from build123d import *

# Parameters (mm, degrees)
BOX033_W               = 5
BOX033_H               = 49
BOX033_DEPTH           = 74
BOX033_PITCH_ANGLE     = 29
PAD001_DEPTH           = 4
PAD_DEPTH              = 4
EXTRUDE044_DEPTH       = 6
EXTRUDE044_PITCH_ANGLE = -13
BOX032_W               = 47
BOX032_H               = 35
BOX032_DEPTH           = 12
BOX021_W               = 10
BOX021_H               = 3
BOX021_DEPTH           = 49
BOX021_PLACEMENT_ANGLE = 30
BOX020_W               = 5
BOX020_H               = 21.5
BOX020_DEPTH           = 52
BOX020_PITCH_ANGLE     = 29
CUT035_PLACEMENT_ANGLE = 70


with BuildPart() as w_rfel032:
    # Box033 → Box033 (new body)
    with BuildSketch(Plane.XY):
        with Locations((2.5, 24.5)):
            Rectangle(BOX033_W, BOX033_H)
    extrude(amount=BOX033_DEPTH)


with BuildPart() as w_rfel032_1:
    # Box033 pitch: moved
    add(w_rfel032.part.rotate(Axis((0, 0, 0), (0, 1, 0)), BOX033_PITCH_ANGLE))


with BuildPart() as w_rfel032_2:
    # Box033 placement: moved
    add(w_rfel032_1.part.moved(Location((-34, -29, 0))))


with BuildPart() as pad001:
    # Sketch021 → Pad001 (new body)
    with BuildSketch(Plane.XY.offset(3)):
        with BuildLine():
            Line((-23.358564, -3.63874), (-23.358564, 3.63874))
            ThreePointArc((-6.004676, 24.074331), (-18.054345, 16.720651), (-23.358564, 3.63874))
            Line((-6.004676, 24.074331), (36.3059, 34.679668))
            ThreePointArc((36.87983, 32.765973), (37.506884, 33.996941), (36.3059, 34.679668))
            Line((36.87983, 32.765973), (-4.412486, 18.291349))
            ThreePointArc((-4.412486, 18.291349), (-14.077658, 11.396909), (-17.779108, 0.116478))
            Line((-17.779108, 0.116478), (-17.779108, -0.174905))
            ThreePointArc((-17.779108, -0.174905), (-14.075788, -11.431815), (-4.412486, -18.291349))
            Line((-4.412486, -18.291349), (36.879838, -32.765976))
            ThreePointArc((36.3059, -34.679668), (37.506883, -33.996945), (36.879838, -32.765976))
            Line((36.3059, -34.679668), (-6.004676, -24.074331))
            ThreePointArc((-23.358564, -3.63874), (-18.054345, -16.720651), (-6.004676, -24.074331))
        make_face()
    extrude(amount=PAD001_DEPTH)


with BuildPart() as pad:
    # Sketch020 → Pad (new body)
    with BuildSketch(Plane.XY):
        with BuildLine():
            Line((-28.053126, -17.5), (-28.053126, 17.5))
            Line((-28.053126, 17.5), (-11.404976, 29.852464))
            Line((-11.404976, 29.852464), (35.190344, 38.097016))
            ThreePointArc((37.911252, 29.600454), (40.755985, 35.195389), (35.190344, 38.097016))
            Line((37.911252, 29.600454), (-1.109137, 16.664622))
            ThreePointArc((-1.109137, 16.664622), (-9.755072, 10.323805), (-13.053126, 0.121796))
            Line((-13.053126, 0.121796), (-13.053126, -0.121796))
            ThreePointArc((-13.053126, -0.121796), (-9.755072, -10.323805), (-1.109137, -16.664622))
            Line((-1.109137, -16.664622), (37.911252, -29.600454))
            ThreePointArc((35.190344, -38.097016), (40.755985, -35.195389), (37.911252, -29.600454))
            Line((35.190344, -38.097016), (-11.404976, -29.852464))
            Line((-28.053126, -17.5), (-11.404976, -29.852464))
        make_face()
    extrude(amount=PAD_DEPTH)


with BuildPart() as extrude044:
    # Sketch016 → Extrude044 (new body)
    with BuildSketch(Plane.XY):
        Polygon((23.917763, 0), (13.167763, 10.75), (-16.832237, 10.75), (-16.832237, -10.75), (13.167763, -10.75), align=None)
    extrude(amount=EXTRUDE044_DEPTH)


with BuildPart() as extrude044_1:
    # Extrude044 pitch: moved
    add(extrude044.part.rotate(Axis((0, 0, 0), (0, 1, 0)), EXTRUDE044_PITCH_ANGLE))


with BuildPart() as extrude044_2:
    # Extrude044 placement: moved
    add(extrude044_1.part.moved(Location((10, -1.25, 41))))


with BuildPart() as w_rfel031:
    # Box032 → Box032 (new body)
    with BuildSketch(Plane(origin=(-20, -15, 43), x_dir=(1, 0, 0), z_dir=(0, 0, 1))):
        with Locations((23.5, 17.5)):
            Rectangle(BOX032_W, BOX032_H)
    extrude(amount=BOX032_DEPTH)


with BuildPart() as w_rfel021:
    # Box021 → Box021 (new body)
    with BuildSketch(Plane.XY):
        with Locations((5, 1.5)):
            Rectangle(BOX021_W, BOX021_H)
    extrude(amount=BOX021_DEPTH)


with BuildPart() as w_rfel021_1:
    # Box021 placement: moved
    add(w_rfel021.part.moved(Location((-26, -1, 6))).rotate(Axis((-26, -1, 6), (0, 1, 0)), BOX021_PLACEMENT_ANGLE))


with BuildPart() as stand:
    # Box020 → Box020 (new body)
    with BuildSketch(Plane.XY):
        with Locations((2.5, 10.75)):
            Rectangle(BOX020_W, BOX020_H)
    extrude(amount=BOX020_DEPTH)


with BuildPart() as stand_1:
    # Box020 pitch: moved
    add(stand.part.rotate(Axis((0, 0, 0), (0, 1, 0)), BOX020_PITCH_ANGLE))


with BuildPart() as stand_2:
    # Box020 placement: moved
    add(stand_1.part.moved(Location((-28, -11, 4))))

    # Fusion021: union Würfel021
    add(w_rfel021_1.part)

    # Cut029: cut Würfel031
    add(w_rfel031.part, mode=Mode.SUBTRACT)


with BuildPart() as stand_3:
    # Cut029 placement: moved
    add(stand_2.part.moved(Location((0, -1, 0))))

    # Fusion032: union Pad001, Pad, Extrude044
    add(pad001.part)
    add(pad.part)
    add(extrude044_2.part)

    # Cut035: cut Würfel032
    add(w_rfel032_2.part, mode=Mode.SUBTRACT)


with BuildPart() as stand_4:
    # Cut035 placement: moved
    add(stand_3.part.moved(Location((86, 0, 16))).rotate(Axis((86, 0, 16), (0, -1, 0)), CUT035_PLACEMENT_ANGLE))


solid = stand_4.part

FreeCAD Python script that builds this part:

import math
import FreeCAD as App
import Part
import Sketcher


def add_polygon(sketch, points):
    """Adds a closed chain of lines whose ends are joined by coincident constraints."""
    first, n = sketch.GeometryCount, len(points)
    for a, b in zip(points, points[1:] + points[:1]):
        sketch.addGeometry(Part.LineSegment(App.Vector(*a, 0), App.Vector(*b, 0)), False)
    for i in range(n):
        sketch.addConstraint(Sketcher.Constraint("Coincident", first + i, 2, first + (i + 1) % n, 1))

doc = App.newDocument("Part")
body = doc.addObject("PartDesign::Body", "Body")

sketch1 = body.newObject("Sketcher::SketchObject", "Sketch")
sketch1.AttachmentSupport = (doc.getObject("XY_Plane"), [""])
sketch1.MapMode = "FlatFace"
add_polygon(sketch1, [(0, 49), (0, 0), (5, 0), (5, 49)])
sketch1.addConstraint(Sketcher.Constraint("Vertical", 0))
sketch1.addConstraint(Sketcher.Constraint("Horizontal", 1))
sketch1.addConstraint(Sketcher.Constraint("Vertical", 2))
sketch1.addConstraint(Sketcher.Constraint("Horizontal", 3))
sketch1.addConstraint(Sketcher.Constraint("Coincident", 0, 2, -1, 1))
sketch1.addConstraint(Sketcher.Constraint("DistanceX", 1, 1, 1, 2, 5.0))
sketch1.addConstraint(Sketcher.Constraint("DistanceY", 0, 2, 0, 1, 49.0))
pad1 = body.newObject("PartDesign::Pad", "Pad")
pad1.Profile = sketch1
pad1.Length = 74
body2 = doc.addObject("PartDesign::Body", "Body001")
doc.recompute()

body.Placement = App.Placement(App.Vector(0, 0, 0), App.Rotation(App.Vector(0, 1, 0), 29))
boolean = body2.newObject("PartDesign::Boolean", "Boolean")
boolean.Type = "Fuse"
boolean.addObjects([body])
body3 = doc.addObject("PartDesign::Body", "Body002")
doc.recompute()

body2.Placement = App.Placement(App.Vector(-34, -29, 0), App.Rotation(App.Vector(0, 0, 1), 0))
boolean2 = body3.newObject("PartDesign::Boolean", "Boolean001")
boolean2.Type = "Fuse"
boolean2.addObjects([body2])
body4 = doc.addObject("PartDesign::Body", "Body003")

sketch2 = body4.newObject("Sketcher::SketchObject", "Sketch001")
sketch2.AttachmentSupport = (doc.getObject("XY_Plane003"), [""])
sketch2.MapMode = "FlatFace"
sketch2.AttachmentOffset = App.Placement(App.Vector(0, 0, 3), App.Rotation())
sketch2.addGeometry(Part.LineSegment(App.Vector(-23.358564, 3.63874, 0), App.Vector(-23.358564, -3.63874, 0)), False)
sketch2.addGeometry(Part.ArcOfCircle(Part.Circle(App.Vector(-0.890387, -2.145031, 0), App.Vector(0, 0, 1), 22.517774), math.radians(-176.196512), math.radians(-103.127709)), False)
sketch2.addGeometry(Part.LineSegment(App.Vector(-6.004676, -24.074331, 0), App.Vector(36.3059, -34.679668, 0)), False)
sketch2.addGeometry(Part.ArcOfCircle(Part.Circle(App.Vector(36.549033, -33.709675, 0), App.Vector(0, 0, 1), 1), math.radians(-104.071549), math.radians(70.682378)), False)
sketch2.addGeometry(Part.LineSegment(App.Vector(36.879838, -32.765976, 0), App.Vector(-4.412486, -18.291349, 0)), False)
sketch2.addGeometry(Part.ArcOfCircle(Part.Circle(App.Vector(1.181261, -0.174904, 0), App.Vector(0, 0, 1), 18.960369), math.radians(-179.999997), math.radians(-107.158923)), False)
sketch2.addGeometry(Part.LineSegment(App.Vector(-17.779108, -0.174905, 0), App.Vector(-17.779108, 0.116478, 0)), False)
sketch2.addGeometry(Part.ArcOfCircle(Part.Circle(App.Vector(1.260578, 0.116476, 0), App.Vector(0, 0, 1), 19.039686), math.radians(107.335115), math.radians(179.999995)), False)
sketch2.addGeometry(Part.LineSegment(App.Vector(-4.412486, 18.291349, 0), App.Vector(36.87983, 32.765973, 0)), False)
sketch2.addGeometry(Part.ArcOfCircle(Part.Circle(App.Vector(36.549033, 33.709675, 0), App.Vector(0, 0, 1), 1), math.radians(-70.68285), math.radians(104.071532)), False)
sketch2.addGeometry(Part.LineSegment(App.Vector(36.3059, 34.679668, 0), App.Vector(-6.004676, 24.074331, 0)), False)
sketch2.addGeometry(Part.ArcOfCircle(Part.Circle(App.Vector(-0.890387, 2.145031, 0), App.Vector(0, 0, 1), 22.517774), math.radians(103.127709), math.radians(176.196512)), False)
sketch2.addConstraint(Sketcher.Constraint("Coincident", 0, 2, 1, 1))
sketch2.addConstraint(Sketcher.Constraint("Coincident", 1, 2, 2, 1))
sketch2.addConstraint(Sketcher.Constraint("Tangent", 2, 2, 3, 1))
sketch2.addConstraint(Sketcher.Constraint("Tangent", 3, 2, 4, 1))
sketch2.addConstraint(Sketcher.Constraint("Coincident", 4, 2, 5, 2))
sketch2.addConstraint(Sketcher.Constraint("Tangent", 5, 1, 6, 1))
sketch2.addConstraint(Sketcher.Constraint("Tangent", 6, 2, 7, 2))
sketch2.addConstraint(Sketcher.Constraint("Coincident", 7, 1, 8, 1))
sketch2.addConstraint(Sketcher.Constraint("Coincident", 8, 2, 9, 1))
sketch2.addConstraint(Sketcher.Constraint("Tangent", 9, 2, 10, 1))
sketch2.addConstraint(Sketcher.Constraint("Coincident", 10, 2, 11, 1))
sketch2.addConstraint(Sketcher.Constraint("Coincident", 11, 2, 0, 1))
sketch2.addConstraint(Sketcher.Constraint("Vertical", 0))
sketch2.addConstraint(Sketcher.Constraint("Vertical", 6))
sketch2.addConstraint(Sketcher.Constraint("Equal", 3, 9))
sketch2.addConstraint(Sketcher.Constraint("Equal", 1, 11))
sketch2.addConstraint(Sketcher.Constraint("Symmetric", 3, 3, 9, 3, -1))
sketch2.addConstraint(Sketcher.Constraint("Symmetric", 1, 3, 11, 3, -1))
sketch2.addConstraint(Sketcher.Constraint("Symmetric", 4, 2, 7, 1, -1))
sketch2.addConstraint(Sketcher.Constraint("Vertical", 1, 2, 10, 2))
sketch2.addConstraint(Sketcher.Constraint("Radius", 3, 1.0))
sketch2.addConstraint(Sketcher.Constraint("Radius", 5, 18.960369))
sketch2.addConstraint(Sketcher.Constraint("Radius", 1, 22.517774))
sketch2.addConstraint(Sketcher.Constraint("Radius", 7, 19.039686))
sketch2.addConstraint(Sketcher.Constraint("Distance", 8, 43.755801))
sketch2.addConstraint(Sketcher.Constraint("DistanceY", 0, 2, 0, 1, 7.27748))
sketch2.addConstraint(Sketcher.Constraint("DistanceX", -1, 1, 2, 2, 36.3059))
sketch2.addConstraint(Sketcher.Constraint("DistanceY", 7, 3, 9, 3, 33.593199))
sketch2.addConstraint(Sketcher.Constraint("DistanceY", 1, 2, 1, 3, 21.9293))
sketch2.addConstraint(Sketcher.Constraint("DistanceX", 4, 2, 1, 3, 3.522099))
sketch2.addConstraint(Sketcher.Constraint("Distance", 2, 43.619468))
sketch2.addConstraint(Sketcher.Constraint("Distance", 4, 43.755809))
sketch2.addConstraint(Sketcher.Constraint("DistanceY", 6, 1, 6, 2, 0.291383))
sketch2.addConstraint(Sketcher.Constraint("DistanceY", 1, 3, -1, 1, 2.145031))
pad2 = body4.newObject("PartDesign::Pad", "Pad001")
pad2.Profile = sketch2
pad2.Length = 4
body5 = doc.addObject("PartDesign::Body", "Body004")

sketch3 = body5.newObject("Sketcher::SketchObject", "Sketch002")
sketch3.AttachmentSupport = (doc.getObject("XY_Plane004"), [""])
sketch3.MapMode = "FlatFace"
sketch3.addGeometry(Part.LineSegment(App.Vector(-28.053126, 17.5, 0), App.Vector(-28.053126, -17.5, 0)), False)
sketch3.addGeometry(Part.LineSegment(App.Vector(-28.053126, -17.5, 0), App.Vector(-11.404976, -29.852464, 0)), False)
sketch3.addGeometry(Part.LineSegment(App.Vector(-11.404976, -29.852464, 0), App.Vector(35.190344, -38.097016, 0)), False)
sketch3.addGeometry(Part.ArcOfCircle(Part.Circle(App.Vector(36.507483, -33.834864, 0), App.Vector(0, 0, 1), 4.461031), math.radians(-107.172797), math.radians(71.658888)), False)
sketch3.addGeometry(Part.LineSegment(App.Vector(37.911252, -29.600454, 0), App.Vector(-1.109137, -16.664622, 0)), False)
sketch3.addGeometry(Part.ArcOfCircle(Part.Circle(App.Vector(4.375054, -0.121796, 0), App.Vector(0, 0, 1), 17.42818), math.radians(-179.999998), math.radians(-108.34112)), False)
sketch3.addGeometry(Part.LineSegment(App.Vector(-13.053126, -0.121796, 0), App.Vector(-13.053126, 0.121796, 0)), False)
sketch3.addGeometry(Part.ArcOfCircle(Part.Circle(App.Vector(4.375054, 0.121796, 0), App.Vector(0, 0, 1), 17.42818), math.radians(108.34112), math.radians(179.999998)), False)
sketch3.addGeometry(Part.LineSegment(App.Vector(-1.109137, 16.664622, 0), App.Vector(37.911252, 29.600454, 0)), False)
sketch3.addGeometry(Part.ArcOfCircle(Part.Circle(App.Vector(36.507483, 33.834864, 0), App.Vector(0, 0, 1), 4.461031), math.radians(-71.658888), math.radians(107.172797)), False)
sketch3.addGeometry(Part.LineSegment(App.Vector(35.190344, 38.097016, 0), App.Vector(-11.404976, 29.852464, 0)), False)
sketch3.addGeometry(Part.LineSegment(App.Vector(-11.404976, 29.852464, 0), App.Vector(-28.053126, 17.5, 0)), False)
sketch3.addConstraint(Sketcher.Constraint("Coincident", 0, 2, 1, 1))
sketch3.addConstraint(Sketcher.Constraint("Coincident", 1, 2, 2, 1))
sketch3.addConstraint(Sketcher.Constraint("Coincident", 2, 2, 3, 1))
sketch3.addConstraint(Sketcher.Constraint("Tangent", 3, 2, 4, 1))
sketch3.addConstraint(Sketcher.Constraint("Tangent", 4, 2, 5, 2))
sketch3.addConstraint(Sketcher.Constraint("Tangent", 5, 1, 6, 1))
sketch3.addConstraint(Sketcher.Constraint("Tangent", 6, 2, 7, 2))
sketch3.addConstraint(Sketcher.Constraint("Tangent", 7, 1, 8, 1))
sketch3.addConstraint(Sketcher.Constraint("Tangent", 8, 2, 9, 1))
sketch3.addConstraint(Sketcher.Constraint("Coincident", 9, 2, 10, 1))
sketch3.addConstraint(Sketcher.Constraint("Coincident", 10, 2, 11, 1))
sketch3.addConstraint(Sketcher.Constraint("Coincident", 11, 2, 0, 1))
sketch3.addConstraint(Sketcher.Constraint("Vertical", 0))
sketch3.addConstraint(Sketcher.Constraint("Vertical", 6))
sketch3.addConstraint(Sketcher.Constraint("Equal", 5, 7))
sketch3.addConstraint(Sketcher.Constraint("Equal", 3, 9))
sketch3.addConstraint(Sketcher.Constraint("Symmetric", 3, 3, 9, 3, -1))
sketch3.addConstraint(Sketcher.Constraint("Symmetric", 1, 2, 10, 2, -1))
sketch3.addConstraint(Sketcher.Constraint("Vertical", 4, 2, 7, 1))
sketch3.addConstraint(Sketcher.Constraint("Vertical", 2, 2, 9, 2))
sketch3.addConstraint(Sketcher.Constraint("Equal", 1, 11))
sketch3.addConstraint(Sketcher.Constraint("DistanceY", 0, 2, 0, 1, 35.0))
sketch3.addConstraint(Sketcher.Constraint("DistanceX", 0, 2, 5, 1, 15.0))
sketch3.addConstraint(Sketcher.Constraint("Radius", 3, 4.461031))
sketch3.addConstraint(Sketcher.Constraint("Radius", 5, 17.42818))
sketch3.addConstraint(Sketcher.Constraint("DistanceY", 3, 3, 1, 2, 3.9824))
sketch3.addConstraint(Sketcher.Constraint("DistanceY", 6, 1, 6, 2, 0.243592))
sketch3.addConstraint(Sketcher.Constraint("DistanceX", -1, 1, 8, 2, 37.911252))
sketch3.addConstraint(Sketcher.Constraint("DistanceX", 5, 3, 3, 3, 32.132429))
sketch3.addConstraint(Sketcher.Constraint("DistanceY", 3, 3, 5, 3, 33.713069))
sketch3.addConstraint(Sketcher.Constraint("DistanceX", 0, 2, 1, 2, 16.64815))
sketch3.addConstraint(Sketcher.Constraint("DistanceX", 2, 2, 3, 3, 1.317139))
pad3 = body5.newObject("PartDesign::Pad", "Pad002")
pad3.Profile = sketch3
pad3.Length = 4
body6 = doc.addObject("PartDesign::Body", "Body005")

sketch4 = body6.newObject("Sketcher::SketchObject", "Sketch003")
sketch4.AttachmentSupport = (doc.getObject("XY_Plane005"), [""])
sketch4.MapMode = "FlatFace"
add_polygon(sketch4, [(23.917763, 0), (13.167763, 10.75), (-16.832237, 10.75), (-16.832237, -10.75), (13.167763, -10.75)])
sketch4.addConstraint(Sketcher.Constraint("Horizontal", 1))
sketch4.addConstraint(Sketcher.Constraint("Vertical", 2))
sketch4.addConstraint(Sketcher.Constraint("Horizontal", 3))
sketch4.addConstraint(Sketcher.Constraint("Symmetric", 0, 2, 3, 2, -1))
sketch4.addConstraint(Sketcher.Constraint("PointOnObject", 4, 2, -1))
sketch4.addConstraint(Sketcher.Constraint("Perpendicular", 0, 4))
sketch4.addConstraint(Sketcher.Constraint("DistanceX", 1, 2, 1, 1, 30.0))
sketch4.addConstraint(Sketcher.Constraint("DistanceY", 2, 2, 2, 1, 21.5))
sketch4.addConstraint(Sketcher.Constraint("DistanceX", -1, 1, 0, 2, 13.167763))
pad4 = body6.newObject("PartDesign::Pad", "Pad003")
pad4.Profile = sketch4
pad4.Length = 6
body7 = doc.addObject("PartDesign::Body", "Body006")
doc.recompute()

body6.Placement = App.Placement(App.Vector(0, 0, 0), App.Rotation(App.Vector(0, 1, 0), 347))
boolean3 = body7.newObject("PartDesign::Boolean", "Boolean002")
boolean3.Type = "Fuse"
boolean3.addObjects([body6])
body8 = doc.addObject("PartDesign::Body", "Body007")
doc.recompute()

body7.Placement = App.Placement(App.Vector(10, -1.25, 41), App.Rotation(App.Vector(0, 0, 1), 0))
boolean4 = body8.newObject("PartDesign::Boolean", "Boolean003")
boolean4.Type = "Fuse"
boolean4.addObjects([body7])
body9 = doc.addObject("PartDesign::Body", "Body008")

sketch5 = body9.newObject("Sketcher::SketchObject", "Sketch004")
sketch5.AttachmentSupport = (doc.getObject("XY_Plane008"), [""])
sketch5.MapMode = "FlatFace"
sketch5.AttachmentOffset = App.Placement(App.Vector(0, 0, 43), App.Rotation())
add_polygon(sketch5, [(-20, 20), (-20, -15), (27, -15), (27, 20)])
sketch5.addConstraint(Sketcher.Constraint("Vertical", 0))
sketch5.addConstraint(Sketcher.Constraint("Horizontal", 1))
sketch5.addConstraint(Sketcher.Constraint("Vertical", 2))
sketch5.addConstraint(Sketcher.Constraint("Horizontal", 3))
sketch5.addConstraint(Sketcher.Constraint("DistanceX", 1, 1, 1, 2, 47.0))
sketch5.addConstraint(Sketcher.Constraint("DistanceY", 0, 2, 0, 1, 35.0))
sketch5.addConstraint(Sketcher.Constraint("DistanceX", 0, 2, -1, 1, 20.0))
sketch5.addConstraint(Sketcher.Constraint("DistanceY", 0, 2, -1, 1, 15.0))
pad5 = body9.newObject("PartDesign::Pad", "Pad004")
pad5.Profile = sketch5
pad5.Length = 12
body10 = doc.addObject("PartDesign::Body", "Body009")

sketch6 = body10.newObject("Sketcher::SketchObject", "Sketch005")
sketch6.AttachmentSupport = (doc.getObject("XY_Plane009"), [""])
sketch6.MapMode = "FlatFace"
add_polygon(sketch6, [(0, 3), (0, 0), (10, 0), (10, 3)])
sketch6.addConstraint(Sketcher.Constraint("Vertical", 0))
sketch6.addConstraint(Sketcher.Constraint("Horizontal", 1))
sketch6.addConstraint(Sketcher.Constraint("Vertical", 2))
sketch6.addConstraint(Sketcher.Constraint("Horizontal", 3))
sketch6.addConstraint(Sketcher.Constraint("Coincident", 0, 2, -1, 1))
sketch6.addConstraint(Sketcher.Constraint("DistanceX", 1, 1, 1, 2, 10.0))
sketch6.addConstraint(Sketcher.Constraint("DistanceY", 0, 2, 0, 1, 3.0))
pad6 = body10.newObject("PartDesign::Pad", "Pad005")
pad6.Profile = sketch6
pad6.Length = 49
body11 = doc.addObject("PartDesign::Body", "Body010")
doc.recompute()

body10.Placement = App.Placement(App.Vector(-26, -1, 6), App.Rotation(App.Vector(0, 1, 0), 30))
boolean5 = body11.newObject("PartDesign::Boolean", "Boolean004")
boolean5.Type = "Fuse"
boolean5.addObjects([body10])
body12 = doc.addObject("PartDesign::Body", "Body011")

sketch7 = body12.newObject("Sketcher::SketchObject", "Sketch006")
sketch7.AttachmentSupport = (doc.getObject("XY_Plane011"), [""])
sketch7.MapMode = "FlatFace"
add_polygon(sketch7, [(0, 21.5), (0, 0), (5, 0), (5, 21.5)])
sketch7.addConstraint(Sketcher.Constraint("Vertical", 0))
sketch7.addConstraint(Sketcher.Constraint("Horizontal", 1))
sketch7.addConstraint(Sketcher.Constraint("Vertical", 2))
sketch7.addConstraint(Sketcher.Constraint("Horizontal", 3))
sketch7.addConstraint(Sketcher.Constraint("Coincident", 0, 2, -1, 1))
sketch7.addConstraint(Sketcher.Constraint("DistanceX", 1, 1, 1, 2, 5.0))
sketch7.addConstraint(Sketcher.Constraint("DistanceY", 0, 2, 0, 1, 21.5))
pad7 = body12.newObject("PartDesign::Pad", "Pad006")
pad7.Profile = sketch7
pad7.Length = 52
body13 = doc.addObject("PartDesign::Body", "Body012")
doc.recompute()

body12.Placement = App.Placement(App.Vector(0, 0, 0), App.Rotation(App.Vector(0, 1, 0), 29))
boolean6 = body13.newObject("PartDesign::Boolean", "Boolean005")
boolean6.Type = "Fuse"
boolean6.addObjects([body12])
body14 = doc.addObject("PartDesign::Body", "Body013")
doc.recompute()

body13.Placement = App.Placement(App.Vector(-28, -11, 4), App.Rotation(App.Vector(0, 0, 1), 0))
boolean7 = body14.newObject("PartDesign::Boolean", "Boolean006")
boolean7.Type = "Fuse"
boolean7.addObjects([body13])
doc.recompute()

boolean8 = body14.newObject("PartDesign::Boolean", "Boolean007")
boolean8.Type = "Fuse"
boolean8.addObjects([body11])
doc.recompute()

boolean9 = body14.newObject("PartDesign::Boolean", "Boolean008")
boolean9.Type = "Cut"
boolean9.addObjects([body9])
body15 = doc.addObject("PartDesign::Body", "Body014")
doc.recompute()

body14.Placement = App.Placement(App.Vector(0, -1, 0), App.Rotation(App.Vector(0, 0, 1), 0))
boolean10 = body15.newObject("PartDesign::Boolean", "Boolean009")
boolean10.Type = "Fuse"
boolean10.addObjects([body14])
doc.recompute()

boolean11 = body15.newObject("PartDesign::Boolean", "Boolean010")
boolean11.Type = "Fuse"
boolean11.addObjects([body4])
doc.recompute()

boolean12 = body15.newObject("PartDesign::Boolean", "Boolean011")
boolean12.Type = "Fuse"
boolean12.addObjects([body5])
doc.recompute()

boolean13 = body15.newObject("PartDesign::Boolean", "Boolean012")
boolean13.Type = "Fuse"
boolean13.addObjects([body8])
doc.recompute()

boolean14 = body15.newObject("PartDesign::Boolean", "Boolean013")
boolean14.Type = "Cut"
boolean14.addObjects([body3])
body16 = doc.addObject("PartDesign::Body", "Body015")
doc.recompute()

body15.Placement = App.Placement(App.Vector(86, 0, 16), App.Rotation(App.Vector(0, -1, 0), 70))
boolean15 = body16.newObject("PartDesign::Boolean", "Boolean014")
boolean15.Type = "Fuse"
boolean15.addObjects([body15])

doc.recompute()
